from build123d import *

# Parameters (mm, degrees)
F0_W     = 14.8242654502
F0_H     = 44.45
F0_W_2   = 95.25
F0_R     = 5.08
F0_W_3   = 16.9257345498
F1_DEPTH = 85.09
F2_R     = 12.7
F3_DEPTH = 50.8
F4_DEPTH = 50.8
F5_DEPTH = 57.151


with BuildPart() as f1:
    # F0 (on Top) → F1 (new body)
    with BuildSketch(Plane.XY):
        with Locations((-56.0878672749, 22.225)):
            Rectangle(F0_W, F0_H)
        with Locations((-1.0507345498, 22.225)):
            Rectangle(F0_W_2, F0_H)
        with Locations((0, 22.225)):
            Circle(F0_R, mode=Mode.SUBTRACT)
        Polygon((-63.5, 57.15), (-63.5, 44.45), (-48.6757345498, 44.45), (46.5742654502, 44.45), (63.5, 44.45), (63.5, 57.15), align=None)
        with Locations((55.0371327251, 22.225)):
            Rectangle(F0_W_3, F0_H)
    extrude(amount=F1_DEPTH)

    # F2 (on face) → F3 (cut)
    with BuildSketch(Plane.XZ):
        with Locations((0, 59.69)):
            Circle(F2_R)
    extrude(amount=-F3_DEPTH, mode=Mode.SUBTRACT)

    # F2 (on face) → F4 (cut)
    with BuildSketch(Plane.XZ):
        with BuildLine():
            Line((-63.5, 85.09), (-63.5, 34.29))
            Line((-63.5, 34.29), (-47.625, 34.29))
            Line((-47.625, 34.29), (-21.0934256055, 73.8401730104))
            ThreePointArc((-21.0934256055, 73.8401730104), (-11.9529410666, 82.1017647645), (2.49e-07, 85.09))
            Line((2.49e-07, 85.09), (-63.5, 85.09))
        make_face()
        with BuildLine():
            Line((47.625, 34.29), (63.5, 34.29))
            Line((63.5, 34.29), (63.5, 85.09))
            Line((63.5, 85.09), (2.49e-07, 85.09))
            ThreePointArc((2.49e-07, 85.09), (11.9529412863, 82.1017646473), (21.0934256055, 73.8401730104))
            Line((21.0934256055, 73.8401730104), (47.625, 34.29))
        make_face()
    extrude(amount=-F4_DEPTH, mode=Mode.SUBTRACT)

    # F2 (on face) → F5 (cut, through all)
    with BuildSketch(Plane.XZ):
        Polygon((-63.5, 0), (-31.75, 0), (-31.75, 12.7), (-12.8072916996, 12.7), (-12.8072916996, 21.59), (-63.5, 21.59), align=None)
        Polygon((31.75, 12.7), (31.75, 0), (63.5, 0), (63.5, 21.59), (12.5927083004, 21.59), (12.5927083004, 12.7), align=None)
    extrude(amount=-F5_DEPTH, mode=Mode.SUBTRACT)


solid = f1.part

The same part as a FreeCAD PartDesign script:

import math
import FreeCAD as App
import Part
import Sketcher
Q = App.Units.Quantity


def add_polygon(sketch, points):
    """Adds a closed chain of lines whose ends are joined by coincident constraints."""
    first, n = sketch.GeometryCount, len(points)
    for a, b in zip(points, points[1:] + points[:1]):
        sketch.addGeometry(Part.LineSegment(App.Vector(*a, 0), App.Vector(*b, 0)), False)
    for i in range(n):
        sketch.addConstraint(Sketcher.Constraint("Coincident", first + i, 2, first + (i + 1) % n, 1))

doc = App.newDocument("Part")
params = doc.addObject("Spreadsheet::Sheet", "Params")
for row, (alias, value) in enumerate([
    ("sketch1_diameter", "0.4 in"),
    ("sketch1_width", "5 in"),
    ("sketch1_height", "2.25 in"),
    ("pad1_length", "3.35 in"),
    ("sketch2_diameter", "1 in"),
    ("pocket1_length", "2 in"),
    ("sketch3_radius", "1 in"),
    ("sketch3_height", "2 in"),
    ("sketch3_width", "2.5 in"),
    ("sketch3_width2", "0.625 in"),
    ("pocket2_length", "2 in"),
    ("sketch4_height", "0.5 in"),
    ("sketch4_width", "1.25 in"),
    ("sketch4_height2", "0.35 in"),
], start=1):
    params.set(f"A{row}", alias)
    params.set(f"B{row}", "=" + value)
    params.setAlias(f"B{row}", alias)

body = doc.addObject("PartDesign::Body", "Body")

sketch1 = doc.addObject("Sketcher::SketchObject", "Sketch")
body.addObject(sketch1)
sketch1.AttachmentSupport = (doc.XY_Plane, [""])
sketch1.MapMode = "FlatFace"
add_polygon(sketch1, [(-63.5, 0), (63.5, 0), (63.5, 57.15), (-63.5, 57.15)])
sketch1.addGeometry(Part.Circle(App.Vector(0, 22.225, 0), App.Vector(0, 0, 1), 5.08), False)
sketch1.addConstraint([
    Sketcher.Constraint("Horizontal", 0),
    Sketcher.Constraint("Vertical", 1),
    Sketcher.Constraint("Horizontal", 2),
    Sketcher.Constraint("Vertical", 3),
    Sketcher.Constraint("Symmetric", 0, 2, 3, 2, -1, 1),
    Sketcher.Constraint("PointOnObject", 4, 3, -2),
    Sketcher.Constraint("Diameter", 4, Q("0.4 in")),
    Sketcher.Constraint("DistanceX", 0, 1, 0, 2, Q("5 in")),
    Sketcher.Constraint("DistanceY", 1, 1, 1, 2, Q("2.25 in")),
    Sketcher.Constraint("DistanceY", -1, 1, 4, 3, Q("0.875 in")),
])
sketch1.setExpression("Constraints[10]", "Params.sketch1_diameter")
sketch1.setExpression("Constraints[11]", "Params.sketch1_width")
sketch1.setExpression("Constraints[12]", "Params.sketch1_height")
pad1 = doc.addObject("PartDesign::Pad", "Pad")
body.addObject(pad1)
pad1.Profile = sketch1
pad1.setExpression("Length", "Params.pad1_length")

sketch2 = doc.addObject("Sketcher::SketchObject", "Sketch001")
body.addObject(sketch2)
sketch2.AttachmentSupport = (doc.XZ_Plane, [""])
sketch2.MapMode = "FlatFace"
sketch2.addGeometry(Part.Circle(App.Vector(0, 59.69, 0), App.Vector(0, 0, 1), 12.7), False)
sketch2.addConstraint([
    Sketcher.Constraint("PointOnObject", 0, 3, -2),
    Sketcher.Constraint("Diameter", 0, Q("1 in")),
    Sketcher.Constraint("DistanceY", -1, 1, 0, 3, Q("2.35 in")),
])
sketch2.setExpression("Constraints[1]", "Params.sketch2_diameter")
pocket1 = doc.addObject("PartDesign::Pocket", "Pocket")
body.addObject(pocket1)
pocket1.Profile = sketch2
pocket1.setExpression("Length", "Params.pocket1_length")

sketch3 = doc.addObject("Sketcher::SketchObject", "Sketch002")
body.addObject(sketch3)
sketch3.AttachmentSupport = (doc.XZ_Plane, [""])
sketch3.MapMode = "FlatFace"
sketch3.addGeometry([
    Part.LineSegment(App.Vector(-63.5, 85.09, 0), App.Vector(-63.5, 34.29, 0)),
    Part.LineSegment(App.Vector(-63.5, 34.29, 0), App.Vector(-47.625, 34.29, 0)),
    Part.LineSegment(App.Vector(-47.625, 34.29, 0), App.Vector(-21.093426, 73.840173, 0)),
    Part.ArcOfCircle(Part.Circle(App.Vector(0, 59.69, 0), App.Vector(0, 0, 1), 25.4), math.radians(89.999999), math.radians(146.144974)),
    Part.LineSegment(App.Vector(0, 85.09, 0), App.Vector(-63.5, 85.09, 0)),
    Part.LineSegment(App.Vector(47.625, 34.29, 0), App.Vector(63.5, 34.29, 0)),
    Part.LineSegment(App.Vector(63.5, 34.29, 0), App.Vector(63.5, 85.09, 0)),
    Part.LineSegment(App.Vector(63.5, 85.09, 0), App.Vector(0, 85.09, 0)),
    Part.ArcOfCircle(Part.Circle(App.Vector(0, 59.69, 0), App.Vector(0, 0, 1), 25.4), math.radians(33.855026), math.radians(89.999999)),
    Part.LineSegment(App.Vector(21.093426, 73.840173, 0), App.Vector(47.625, 34.29, 0)),
], False)
sketch3.addConstraint([
    Sketcher.Constraint("Coincident", 0, 2, 1, 1),
    Sketcher.Constraint("Coincident", 1, 2, 2, 1),
    Sketcher.Constraint("Tangent", 2, 2, 3, 2),
    Sketcher.Constraint("Tangent", 3, 1, 4, 1),
    Sketcher.Constraint("Coincident", 4, 2, 0, 1),
    Sketcher.Constraint("Coincident", 5, 2, 6, 1),
    Sketcher.Constraint("Coincident", 6, 2, 7, 1),
    Sketcher.Constraint("Tangent", 7, 2, 8, 2),
    Sketcher.Constraint("Tangent", 8, 1, 9, 1),
    Sketcher.Constraint("Coincident", 9, 2, 5, 1),
    Sketcher.Constraint("Vertical", 0),
    Sketcher.Constraint("Horizontal", 1),
    Sketcher.Constraint("Horizontal", 4),
    Sketcher.Constraint("Horizontal", 5),
    Sketcher.Constraint("Vertical", 6),
    Sketcher.Constraint("Horizontal", 7),
    Sketcher.Constraint("Coincident", 8, 3, 3, 3),
    Sketcher.Constraint("Equal", 3, 8),
    Sketcher.Constraint("Symmetric", 0, 2, 5, 2, -2),
    Sketcher.Constraint("Symmetric", 2, 2, 8, 1, -2),
    Sketcher.Constraint("Radius", 3, Q("1 in")),
    Sketcher.Constraint("DistanceY", 0, 2, 0, 1, Q("2 in")),
    Sketcher.Constraint("DistanceX", 4, 2, 4, 1, Q("2.5 in")),
    Sketcher.Constraint("DistanceX", 1, 1, 1, 2, Q("0.625 in")),
    Sketcher.Constraint("DistanceY", -1, 1, 3, 3, Q("2.35 in")),
])
sketch3.setExpression("Constraints[20]", "Params.sketch3_radius")
sketch3.setExpression("Constraints[21]", "Params.sketch3_height")
sketch3.setExpression("Constraints[22]", "Params.sketch3_width")
sketch3.setExpression("Constraints[23]", "Params.sketch3_width2")
pocket2 = doc.addObject("PartDesign::Pocket", "Pocket001")
body.addObject(pocket2)
pocket2.Profile = sketch3
pocket2.setExpression("Length", "Params.pocket2_length")

sketch4 = doc.addObject("Sketcher::SketchObject", "Sketch003")
body.addObject(sketch4)
sketch4.AttachmentSupport = (doc.XZ_Plane, [""])
sketch4.MapMode = "FlatFace"
add_polygon(sketch4, [(-63.5, 0), (-31.75, 0), (-31.75, 12.7), (-12.807292, 12.7), (-12.807292, 21.59), (-63.5, 21.59)])
add_polygon(sketch4, [(31.75, 12.7), (31.75, 0), (63.5, 0), (63.5, 21.59), (12.592708, 21.59), (12.592708, 12.7)])
sketch4.addConstraint([
    Sketcher.Constraint("Horizontal", 0),
    Sketcher.Constraint("Vertical", 1),
    Sketcher.Constraint("Horizontal", 2),
    Sketcher.Constraint("Vertical", 3),
    Sketcher.Constraint("Horizontal", 4),
    Sketcher.Constraint("Vertical", 5),
    Sketcher.Constraint("Vertical", 6),
    Sketcher.Constraint("Horizontal", 7),
    Sketcher.Constraint("Vertical", 8),
    Sketcher.Constraint("Horizontal", 9),
    Sketcher.Constraint("Vertical", 10),
    Sketcher.Constraint("Horizontal", 11),
    Sketcher.Constraint("Symmetric", 0, 2, 6, 2, -1, 1),
    Sketcher.Constraint("Symmetric", 5, 2, 7, 2, -2),
    Sketcher.Constraint("Horizontal", 4, 2, 8, 2),
    Sketcher.Constraint("Horizontal", 2, 2, 10, 2),
    Sketcher.Constraint("DistanceY", 1, 1, 1, 2, Q("0.5 in")),
    Sketcher.Constraint("DistanceX", 3, 2, 9, 2, Q("1 in")),
    Sketcher.Constraint("DistanceX", 0, 1, 0, 2, Q("1.25 in")),
    Sketcher.Constraint("DistanceY", 3, 1, 3, 2, Q("0.35 in")),
    Sketcher.Constraint("DistanceX", 4, 2, -1, 1, Q("2.5 in")),
    Sketcher.Constraint("DistanceX", 2, 1, 2, 2, 18.942708),
])
sketch4.setExpression("Constraints[28]", "Params.sketch4_height")
sketch4.setExpression("Constraints[30]", "Params.sketch4_width")
sketch4.setExpression("Constraints[31]", "Params.sketch4_height2")
pocket3 = doc.addObject("PartDesign::Pocket", "Pocket002")
body.addObject(pocket3)
pocket3.Profile = sketch4
pocket3.Type = "ThroughAll"

doc.recompute()
